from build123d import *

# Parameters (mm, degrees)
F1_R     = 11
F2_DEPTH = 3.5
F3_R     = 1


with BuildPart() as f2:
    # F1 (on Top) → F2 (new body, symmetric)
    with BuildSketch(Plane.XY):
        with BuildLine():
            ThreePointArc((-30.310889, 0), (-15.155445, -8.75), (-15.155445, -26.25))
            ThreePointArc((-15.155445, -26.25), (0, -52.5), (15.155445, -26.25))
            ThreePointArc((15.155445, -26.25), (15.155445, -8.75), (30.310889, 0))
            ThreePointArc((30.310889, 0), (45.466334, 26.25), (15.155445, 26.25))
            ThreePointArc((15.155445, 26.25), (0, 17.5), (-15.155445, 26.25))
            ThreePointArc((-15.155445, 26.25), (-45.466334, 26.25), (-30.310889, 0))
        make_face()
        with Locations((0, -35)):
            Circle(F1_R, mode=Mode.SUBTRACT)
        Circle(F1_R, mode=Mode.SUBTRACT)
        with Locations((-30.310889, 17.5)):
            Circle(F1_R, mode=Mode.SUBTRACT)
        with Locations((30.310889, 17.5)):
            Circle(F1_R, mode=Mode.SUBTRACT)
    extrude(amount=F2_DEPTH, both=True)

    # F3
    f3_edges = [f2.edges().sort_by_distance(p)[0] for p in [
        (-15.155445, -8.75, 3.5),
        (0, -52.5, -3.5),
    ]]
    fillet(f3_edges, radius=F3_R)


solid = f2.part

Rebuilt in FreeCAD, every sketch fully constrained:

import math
import FreeCAD as App
import Part
import Sketcher

V = App.Vector


def edges_at(feature, points):
    """Names of the edges that pass closest to the given points."""
    edges = feature.Shape.Edges
    near = lambda p: min(range(len(edges)), key=lambda i: edges[i].distToShape(Part.Vertex(*p))[0])
    return sorted({f"Edge{near(p) + 1}" for p in points})

doc = App.newDocument("Part")
params = doc.addObject("Spreadsheet::Sheet", "Params")
for row, (alias, value) in enumerate([
    ("sketch1_diameter", "22 mm"),
    ("sketch1_radius", "17.5 mm"),
    ("pad1_length", "7 mm"),
    ("fillet_radius", "1 mm"),
], start=1):
    params.set(f"A{row}", alias)
    params.set(f"B{row}", "=" + value)
    params.setAlias(f"B{row}", alias)

body = doc.addObject("PartDesign::Body", "Body")

# Sketch on XY plane
sketch1 = doc.addObject("Sketcher::SketchObject", "Sketch")
body.addObject(sketch1)
sketch1.AttachmentSupport = (doc.XY_Plane, [""])
sketch1.MapMode = "FlatFace"
sketch1.addGeometry([
    Part.ArcOfCircle(Part.Circle(V(-30.31089, -17.5, 0), V(0, 0, 1), 17.5), math.radians(-30), math.radians(89.999998)),  # 0
    Part.ArcOfCircle(Part.Circle(V(0, -35, 0), V(0, 0, 1), 17.5), math.radians(150.000001), math.radians(389.999999)),  # 1
    Part.ArcOfCircle(Part.Circle(V(30.31089, -17.5, 0), V(0, 0, 1), 17.5), math.radians(90.000002), math.radians(210)),  # 2
    Part.ArcOfCircle(Part.Circle(V(30.310889, 17.5, 0), V(0, 0, 1), 17.5), math.radians(-90.000002), math.radians(150)),  # 3
    Part.ArcOfCircle(Part.Circle(V(0, 35.000001, 0), V(0, 0, 1), 17.500001), math.radians(-149.999999), math.radians(-30.000001)),  # 4
    Part.ArcOfCircle(Part.Circle(V(-30.310889, 17.5, 0), V(0, 0, 1), 17.5), math.radians(30), math.radians(270.000002)),  # 5
    Part.Circle(V(0, -35, 0), V(0, 0, 1), 11),  # 6
    Part.Circle(V(-30.310889, 17.5, 0), V(0, 0, 1), 11),  # 7
    Part.Circle(V(0, 0, 0), V(0, 0, 1), 11),  # 8
    Part.Circle(V(30.310889, 17.5, 0), V(0, 0, 1), 11),  # 9
], False)
sketch1.addConstraint([
    Sketcher.Constraint("Tangent", 0, 1, 1, 1),
    Sketcher.Constraint("Tangent", 1, 2, 2, 2),
    Sketcher.Constraint("Tangent", 2, 1, 3, 1),
    Sketcher.Constraint("Tangent", 3, 2, 4, 2),
    Sketcher.Constraint("Tangent", 4, 1, 5, 1),
    Sketcher.Constraint("Tangent", 5, 2, 0, 2),
    Sketcher.Constraint("Coincident", 8, 3, -1, 1),
    Sketcher.Constraint("Coincident", 6, 3, 1, 3),
    Sketcher.Constraint("Coincident", 7, 3, 5, 3),
    Sketcher.Constraint("Coincident", 9, 3, 3, 3),
    Sketcher.Constraint("Equal", 0, 1),
    Sketcher.Constraint("Equal", 1, 2),
    Sketcher.Constraint("Equal", 2, 3),
    Sketcher.Constraint("Equal", 3, 4),
    Sketcher.Constraint("Equal", 4, 5),
    Sketcher.Constraint("Equal", 6, 7),
    Sketcher.Constraint("Equal", 7, 8),
    Sketcher.Constraint("Equal", 8, 9),
    Sketcher.Constraint("Symmetric", 0, 3, 3, 3, -1, 1),
    Sketcher.Constraint("Symmetric", 0, 3, 2, 3, -2),
    Sketcher.Constraint("PointOnObject", 4, 3, -2),
    Sketcher.Constraint("Diameter", 6, 22.0),
    Sketcher.Constraint("Radius", 0, 17.5),
    Sketcher.Constraint("DistanceY", 1, 3, -1, 1, 35.0),
])
sketch1.setExpression("Constraints[21]", "Params.sketch1_diameter")
sketch1.setExpression("Constraints[22]", "Params.sketch1_radius")
pad1 = doc.addObject("PartDesign::Pad", "Pad")
body.addObject(pad1)
pad1.Profile = sketch1
pad1.setExpression("Length", "Params.pad1_length")
pad1.Midplane = True
doc.recompute()

fillet = doc.addObject("PartDesign::Fillet", "Fillet")
body.addObject(fillet)
fillet.Base = (pad1, edges_at(pad1, [(-15.155, -8.75, 3.5), (0, -52.5, -3.5)]))
fillet.setExpression("Radius", "Params.fillet_radius")

doc.recompute()
